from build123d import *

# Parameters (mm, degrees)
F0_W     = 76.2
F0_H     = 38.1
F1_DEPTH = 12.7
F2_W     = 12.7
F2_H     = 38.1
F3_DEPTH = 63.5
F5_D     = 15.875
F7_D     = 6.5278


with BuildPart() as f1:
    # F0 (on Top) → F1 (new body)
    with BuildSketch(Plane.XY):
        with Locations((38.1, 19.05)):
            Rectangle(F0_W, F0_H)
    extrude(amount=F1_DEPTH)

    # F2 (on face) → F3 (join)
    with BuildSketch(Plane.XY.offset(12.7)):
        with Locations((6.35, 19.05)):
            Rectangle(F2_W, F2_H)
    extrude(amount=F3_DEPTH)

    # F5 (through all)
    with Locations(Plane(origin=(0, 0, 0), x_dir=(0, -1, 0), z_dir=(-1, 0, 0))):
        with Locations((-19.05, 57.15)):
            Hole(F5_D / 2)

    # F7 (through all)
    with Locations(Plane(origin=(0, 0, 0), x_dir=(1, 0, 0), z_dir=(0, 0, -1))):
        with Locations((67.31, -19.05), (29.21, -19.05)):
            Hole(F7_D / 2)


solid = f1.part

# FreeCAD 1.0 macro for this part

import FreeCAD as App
import Part
import Sketcher

V = App.Vector
Q = App.Units.Quantity

doc = App.newDocument("Part")
body = doc.addObject("PartDesign::Body", "Body")

sketch1 = body.newObject("Sketcher::SketchObject", "Sketch")
sketch1.AttachmentSupport = (doc.getObject("XY_Plane"), [""])
sketch1.MapMode = "FlatFace"
sketch1.addGeometry([
    Part.LineSegment(V(0, 38, 0), V(0, 0, 0)),
    Part.LineSegment(V(0, 0, 0), V(76, 0, 0)),
    Part.LineSegment(V(76, 0, 0), V(76, 38, 0)),
    Part.LineSegment(V(76, 38, 0), V(0, 38, 0)),
], False)
sketch1.addConstraint([
    Sketcher.Constraint("Coincident", 0, 2, 1, 1),
    Sketcher.Constraint("Coincident", 1, 2, 2, 1),
    Sketcher.Constraint("Coincident", 2, 2, 3, 1),
    Sketcher.Constraint("Coincident", 3, 2, 0, 1),
    Sketcher.Constraint("Vertical", 0),
    Sketcher.Constraint("Horizontal", 1),
    Sketcher.Constraint("Vertical", 2),
    Sketcher.Constraint("Horizontal", 3),
    Sketcher.Constraint("Coincident", 0, 2, -1, 1),
    Sketcher.Constraint("DistanceX", 1, 1, 1, 2, Q("3 in")),
    Sketcher.Constraint("DistanceY", 0, 2, 0, 1, Q("1.5 in")),
])
pad1 = body.newObject("PartDesign::Pad", "Pad")
pad1.Profile = sketch1
pad1.Length = Q("0.5 in")

sketch2 = body.newObject("Sketcher::SketchObject", "Sketch001")
sketch2.AttachmentSupport = (doc.getObject("XY_Plane"), [""])
sketch2.MapMode = "FlatFace"
sketch2.AttachmentOffset = App.Placement(V(0, 0, 0.5 * 25.4), App.Rotation())
sketch2.addGeometry([
    Part.LineSegment(V(0, 38, 0), V(0, 0, 0)),
    Part.LineSegment(V(0, 0, 0), V(13, 0, 0)),
    Part.LineSegment(V(13, 0, 0), V(13, 38, 0)),
    Part.LineSegment(V(13, 38, 0), V(0, 38, 0)),
], False)
sketch2.addConstraint([
    Sketcher.Constraint("Coincident", 0, 2, 1, 1),
    Sketcher.Constraint("Coincident", 1, 2, 2, 1),
    Sketcher.Constraint("Coincident", 2, 2, 3, 1),
    Sketcher.Constraint("Coincident", 3, 2, 0, 1),
    Sketcher.Constraint("Vertical", 0),
    Sketcher.Constraint("Horizontal", 1),
    Sketcher.Constraint("Vertical", 2),
    Sketcher.Constraint("Horizontal", 3),
    Sketcher.Constraint("Coincident", 0, 2, -1, 1),
    Sketcher.Constraint("DistanceX", 1, 1, 1, 2, Q("0.5 in")),
    Sketcher.Constraint("DistanceY", 0, 2, 0, 1, Q("1.5 in")),
])
pad2 = body.newObject("PartDesign::Pad", "Pad001")
pad2.Profile = sketch2
pad2.Length = Q("2.5 in")

sketch3 = body.newObject("Sketcher::SketchObject", "Sketch002")
sketch3.AttachmentSupport = (doc.getObject("YZ_Plane"), [""])
sketch3.MapMode = "FlatFace"
sketch3.addGeometry(Part.Circle(V(19, 57, 0), V(0, 0, 1), 8), False)
sketch3.addConstraint([
    Sketcher.Constraint("Diameter", 0, Q("0.625 in")),
    Sketcher.Constraint("DistanceX", -1, 1, 0, 3, Q("0.75 in")),
    Sketcher.Constraint("DistanceY", -1, 1, 0, 3, Q("2.25 in")),
])
doc.recompute()
hole = body.newObject("PartDesign::Hole", "Hole")
hole.Profile = sketch3
hole.ThreadType = "None"
hole.Diameter = Q("0.625 in")
hole.DepthType = "ThroughAll"
hole.Reversed = True

sketch4 = body.newObject("Sketcher::SketchObject", "Sketch003")
sketch4.AttachmentSupport = (doc.getObject("XY_Plane"), [""])
sketch4.MapMode = "FlatFace"
sketch4.addGeometry([
    Part.Circle(V(67.3, 19.1, 0), V(0, 0, 1), 3.3),
    Part.Circle(V(29.2, 19.1, 0), V(0, 0, 1), 3.3),
], False)
sketch4.addConstraint([
    Sketcher.Constraint("Equal", 0, 1),
    Sketcher.Constraint("Horizontal", 0, 3, 1, 3),
    Sketcher.Constraint("Diameter", 0, Q("0.257 in")),
    Sketcher.Constraint("DistanceX", 1, 3, 0, 3, Q("1.5 in")),
    Sketcher.Constraint("DistanceX", -1, 1, 0, 3, Q("2.65 in")),
    Sketcher.Constraint("DistanceY", -1, 1, 0, 3, Q("0.75 in")),
])
doc.recompute()
hole2 = body.newObject("PartDesign::Hole", "Hole001")
hole2.Profile = sketch4
hole2.ThreadType = "None"
hole2.Diameter = Q("0.257 in")
hole2.DepthType = "ThroughAll"
hole2.Reversed = True

doc.recompute()
